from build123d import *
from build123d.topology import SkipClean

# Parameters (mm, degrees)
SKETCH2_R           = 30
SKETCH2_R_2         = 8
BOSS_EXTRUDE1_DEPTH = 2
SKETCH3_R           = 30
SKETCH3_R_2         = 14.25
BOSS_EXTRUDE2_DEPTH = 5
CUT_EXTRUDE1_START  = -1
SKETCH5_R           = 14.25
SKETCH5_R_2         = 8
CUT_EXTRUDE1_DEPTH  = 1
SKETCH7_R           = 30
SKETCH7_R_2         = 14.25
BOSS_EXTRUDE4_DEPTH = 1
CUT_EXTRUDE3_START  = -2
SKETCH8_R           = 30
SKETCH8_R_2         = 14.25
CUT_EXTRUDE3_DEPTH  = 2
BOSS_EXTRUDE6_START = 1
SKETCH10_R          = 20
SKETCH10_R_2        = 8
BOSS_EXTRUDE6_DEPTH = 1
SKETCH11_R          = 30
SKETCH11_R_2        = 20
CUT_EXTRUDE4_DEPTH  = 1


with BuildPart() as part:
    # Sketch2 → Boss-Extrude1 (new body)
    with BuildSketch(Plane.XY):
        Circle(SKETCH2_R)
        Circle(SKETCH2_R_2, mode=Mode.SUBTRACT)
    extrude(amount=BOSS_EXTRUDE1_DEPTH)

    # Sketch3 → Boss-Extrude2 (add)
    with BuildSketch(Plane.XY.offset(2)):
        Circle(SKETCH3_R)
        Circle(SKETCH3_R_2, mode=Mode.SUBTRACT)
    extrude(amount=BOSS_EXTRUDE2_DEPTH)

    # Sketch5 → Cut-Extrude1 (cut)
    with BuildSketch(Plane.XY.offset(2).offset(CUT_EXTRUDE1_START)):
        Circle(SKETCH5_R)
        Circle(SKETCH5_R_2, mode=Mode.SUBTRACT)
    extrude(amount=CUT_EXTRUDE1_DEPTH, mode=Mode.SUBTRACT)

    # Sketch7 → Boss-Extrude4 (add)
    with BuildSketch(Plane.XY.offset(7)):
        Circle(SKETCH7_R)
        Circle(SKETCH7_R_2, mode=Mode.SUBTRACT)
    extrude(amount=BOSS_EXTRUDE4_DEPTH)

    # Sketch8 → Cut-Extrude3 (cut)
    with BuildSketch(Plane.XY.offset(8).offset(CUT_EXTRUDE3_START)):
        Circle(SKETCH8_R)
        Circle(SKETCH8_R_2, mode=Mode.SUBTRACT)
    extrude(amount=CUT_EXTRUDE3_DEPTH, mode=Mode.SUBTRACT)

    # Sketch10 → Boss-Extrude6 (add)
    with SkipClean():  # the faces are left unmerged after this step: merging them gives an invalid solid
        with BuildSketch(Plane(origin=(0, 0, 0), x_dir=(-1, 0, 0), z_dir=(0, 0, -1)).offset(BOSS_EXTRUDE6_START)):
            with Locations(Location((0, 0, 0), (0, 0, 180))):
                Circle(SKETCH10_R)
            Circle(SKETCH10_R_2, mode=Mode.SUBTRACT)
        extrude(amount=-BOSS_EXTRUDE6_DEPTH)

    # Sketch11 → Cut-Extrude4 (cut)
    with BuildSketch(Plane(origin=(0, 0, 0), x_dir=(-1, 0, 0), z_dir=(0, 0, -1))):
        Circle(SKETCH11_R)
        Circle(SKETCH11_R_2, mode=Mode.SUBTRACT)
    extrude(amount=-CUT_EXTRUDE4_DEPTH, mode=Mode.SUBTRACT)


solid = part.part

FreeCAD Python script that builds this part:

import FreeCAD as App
import Part
import Sketcher

V = App.Vector

doc = App.newDocument("Part")
body = doc.addObject("PartDesign::Body", "Body")

# Sketch on XY plane
sketch1 = body.newObject("Sketcher::SketchObject", "Sketch")
sketch1.AttachmentSupport = (doc.getObject("XY_Plane"), [""])
sketch1.MapMode = "FlatFace"
sketch1.addGeometry([
    Part.Circle(V(0, 0, 0), V(0, 0, 1), 30),
    Part.Circle(V(0, 0, 0), V(0, 0, 1), 8),
], False)
sketch1.addConstraint([
    Sketcher.Constraint("Coincident", 0, 3, -1, 1),
    Sketcher.Constraint("Coincident", 1, 3, -1, 1),
    Sketcher.Constraint("Diameter", 0, 60.0),
    Sketcher.Constraint("Diameter", 1, 16.0),
])
pad1 = body.newObject("PartDesign::Pad", "Pad")
pad1.Profile = sketch1
pad1.Length = 2

# Sketch on XY plane
sketch2 = body.newObject("Sketcher::SketchObject", "Sketch001")
sketch2.AttachmentSupport = (doc.getObject("XY_Plane"), [""])
sketch2.MapMode = "FlatFace"
sketch2.AttachmentOffset = App.Placement(V(0, 0, 2), App.Rotation())
sketch2.addGeometry([
    Part.Circle(V(0, 0, 0), V(0, 0, 1), 30),
    Part.Circle(V(0, 0, 0), V(0, 0, 1), 14),
], False)
sketch2.addConstraint([
    Sketcher.Constraint("Coincident", 0, 3, -1, 1),
    Sketcher.Constraint("Coincident", 1, 3, -1, 1),
    Sketcher.Constraint("Diameter", 0, 60.0),
    Sketcher.Constraint("Diameter", 1, 28.5),
])
pad2 = body.newObject("PartDesign::Pad", "Pad001")
pad2.Profile = sketch2
pad2.Length = 5

# Sketch on XY plane
sketch3 = body.newObject("Sketcher::SketchObject", "Sketch002")
sketch3.AttachmentSupport = (doc.getObject("XY_Plane"), [""])
sketch3.MapMode = "FlatFace"
sketch3.AttachmentOffset = App.Placement(V(0, 0, 1), App.Rotation())
sketch3.addGeometry([
    Part.Circle(V(0, 0, 0), V(0, 0, 1), 14),
    Part.Circle(V(0, 0, 0), V(0, 0, 1), 8),
], False)
sketch3.addConstraint([
    Sketcher.Constraint("Coincident", 0, 3, -1, 1),
    Sketcher.Constraint("Coincident", 1, 3, -1, 1),
    Sketcher.Constraint("Diameter", 1, 16.0),
    Sketcher.Constraint("Diameter", 0, 28.5),
])
pocket1 = body.newObject("PartDesign::Pocket", "Pocket")
pocket1.Profile = sketch3
pocket1.Length = 1
pocket1.Reversed = True

# Sketch on XY plane
sketch4 = body.newObject("Sketcher::SketchObject", "Sketch003")
sketch4.AttachmentSupport = (doc.getObject("XY_Plane"), [""])
sketch4.MapMode = "FlatFace"
sketch4.AttachmentOffset = App.Placement(V(0, 0, 7), App.Rotation())
sketch4.addGeometry([
    Part.Circle(V(0, 0, 0), V(0, 0, 1), 30),
    Part.Circle(V(0, 0, 0), V(0, 0, 1), 14),
], False)
sketch4.addConstraint([
    Sketcher.Constraint("Coincident", 0, 3, -1, 1),
    Sketcher.Constraint("Coincident", 1, 3, -1, 1),
    Sketcher.Constraint("Diameter", 0, 60.0),
    Sketcher.Constraint("Diameter", 1, 28.5),
])
pad3 = body.newObject("PartDesign::Pad", "Pad002")
pad3.Profile = sketch4
pad3.Length = 1

# Sketch on XY plane
sketch5 = body.newObject("Sketcher::SketchObject", "Sketch004")
sketch5.AttachmentSupport = (doc.getObject("XY_Plane"), [""])
sketch5.MapMode = "FlatFace"
sketch5.AttachmentOffset = App.Placement(V(0, 0, 6), App.Rotation())
sketch5.addGeometry([
    Part.Circle(V(0, 0, 0), V(0, 0, 1), 30),
    Part.Circle(V(0, 0, 0), V(0, 0, 1), 14),
], False)
sketch5.addConstraint([
    Sketcher.Constraint("Coincident", 0, 3, -1, 1),
    Sketcher.Constraint("Coincident", 1, 3, -1, 1),
    Sketcher.Constraint("Diameter", 0, 60.0),
    Sketcher.Constraint("Diameter", 1, 28.5),
])
pocket2 = body.newObject("PartDesign::Pocket", "Pocket001")
pocket2.Profile = sketch5
pocket2.Length = 2
pocket2.Reversed = True

# Sketch on XY plane
sketch6 = body.newObject("Sketcher::SketchObject", "Sketch005")
sketch6.AttachmentSupport = (doc.getObject("XY_Plane"), [""])
sketch6.MapMode = "FlatFace"
sketch6.AttachmentOffset = App.Placement(V(0, 0, -1), App.Rotation())
sketch6.addGeometry([
    Part.Circle(V(0, 0, 0), V(0, 0, 1), 20),
    Part.Circle(V(0, 0, 0), V(0, 0, 1), 8),
], False)
sketch6.addConstraint([
    Sketcher.Constraint("Coincident", 0, 3, -1, 1),
    Sketcher.Constraint("Coincident", 1, 3, -1, 1),
    Sketcher.Constraint("Diameter", 0, 40.0),
    Sketcher.Constraint("Diameter", 1, 16.0),
])
pad4 = body.newObject("PartDesign::Pad", "Pad003")
pad4.Profile = sketch6
pad4.Length = 1

# Sketch on XY plane
sketch7 = body.newObject("Sketcher::SketchObject", "Sketch006")
sketch7.AttachmentSupport = (doc.getObject("XY_Plane"), [""])
sketch7.MapMode = "FlatFace"
sketch7.addGeometry([
    Part.Circle(V(0, 0, 0), V(0, 0, 1), 30),
    Part.Circle(V(0, 0, 0), V(0, 0, 1), 20),
], False)
sketch7.addConstraint([
    Sketcher.Constraint("Coincident", 0, 3, -1, 1),
    Sketcher.Constraint("Coincident", 1, 3, -1, 1),
    Sketcher.Constraint("Diameter", 0, 60.0),
    Sketcher.Constraint("Diameter", 1, 40.0),
])
pocket3 = body.newObject("PartDesign::Pocket", "Pocket002")
pocket3.Profile = sketch7
pocket3.Length = 1
pocket3.Reversed = True

doc.recompute()
